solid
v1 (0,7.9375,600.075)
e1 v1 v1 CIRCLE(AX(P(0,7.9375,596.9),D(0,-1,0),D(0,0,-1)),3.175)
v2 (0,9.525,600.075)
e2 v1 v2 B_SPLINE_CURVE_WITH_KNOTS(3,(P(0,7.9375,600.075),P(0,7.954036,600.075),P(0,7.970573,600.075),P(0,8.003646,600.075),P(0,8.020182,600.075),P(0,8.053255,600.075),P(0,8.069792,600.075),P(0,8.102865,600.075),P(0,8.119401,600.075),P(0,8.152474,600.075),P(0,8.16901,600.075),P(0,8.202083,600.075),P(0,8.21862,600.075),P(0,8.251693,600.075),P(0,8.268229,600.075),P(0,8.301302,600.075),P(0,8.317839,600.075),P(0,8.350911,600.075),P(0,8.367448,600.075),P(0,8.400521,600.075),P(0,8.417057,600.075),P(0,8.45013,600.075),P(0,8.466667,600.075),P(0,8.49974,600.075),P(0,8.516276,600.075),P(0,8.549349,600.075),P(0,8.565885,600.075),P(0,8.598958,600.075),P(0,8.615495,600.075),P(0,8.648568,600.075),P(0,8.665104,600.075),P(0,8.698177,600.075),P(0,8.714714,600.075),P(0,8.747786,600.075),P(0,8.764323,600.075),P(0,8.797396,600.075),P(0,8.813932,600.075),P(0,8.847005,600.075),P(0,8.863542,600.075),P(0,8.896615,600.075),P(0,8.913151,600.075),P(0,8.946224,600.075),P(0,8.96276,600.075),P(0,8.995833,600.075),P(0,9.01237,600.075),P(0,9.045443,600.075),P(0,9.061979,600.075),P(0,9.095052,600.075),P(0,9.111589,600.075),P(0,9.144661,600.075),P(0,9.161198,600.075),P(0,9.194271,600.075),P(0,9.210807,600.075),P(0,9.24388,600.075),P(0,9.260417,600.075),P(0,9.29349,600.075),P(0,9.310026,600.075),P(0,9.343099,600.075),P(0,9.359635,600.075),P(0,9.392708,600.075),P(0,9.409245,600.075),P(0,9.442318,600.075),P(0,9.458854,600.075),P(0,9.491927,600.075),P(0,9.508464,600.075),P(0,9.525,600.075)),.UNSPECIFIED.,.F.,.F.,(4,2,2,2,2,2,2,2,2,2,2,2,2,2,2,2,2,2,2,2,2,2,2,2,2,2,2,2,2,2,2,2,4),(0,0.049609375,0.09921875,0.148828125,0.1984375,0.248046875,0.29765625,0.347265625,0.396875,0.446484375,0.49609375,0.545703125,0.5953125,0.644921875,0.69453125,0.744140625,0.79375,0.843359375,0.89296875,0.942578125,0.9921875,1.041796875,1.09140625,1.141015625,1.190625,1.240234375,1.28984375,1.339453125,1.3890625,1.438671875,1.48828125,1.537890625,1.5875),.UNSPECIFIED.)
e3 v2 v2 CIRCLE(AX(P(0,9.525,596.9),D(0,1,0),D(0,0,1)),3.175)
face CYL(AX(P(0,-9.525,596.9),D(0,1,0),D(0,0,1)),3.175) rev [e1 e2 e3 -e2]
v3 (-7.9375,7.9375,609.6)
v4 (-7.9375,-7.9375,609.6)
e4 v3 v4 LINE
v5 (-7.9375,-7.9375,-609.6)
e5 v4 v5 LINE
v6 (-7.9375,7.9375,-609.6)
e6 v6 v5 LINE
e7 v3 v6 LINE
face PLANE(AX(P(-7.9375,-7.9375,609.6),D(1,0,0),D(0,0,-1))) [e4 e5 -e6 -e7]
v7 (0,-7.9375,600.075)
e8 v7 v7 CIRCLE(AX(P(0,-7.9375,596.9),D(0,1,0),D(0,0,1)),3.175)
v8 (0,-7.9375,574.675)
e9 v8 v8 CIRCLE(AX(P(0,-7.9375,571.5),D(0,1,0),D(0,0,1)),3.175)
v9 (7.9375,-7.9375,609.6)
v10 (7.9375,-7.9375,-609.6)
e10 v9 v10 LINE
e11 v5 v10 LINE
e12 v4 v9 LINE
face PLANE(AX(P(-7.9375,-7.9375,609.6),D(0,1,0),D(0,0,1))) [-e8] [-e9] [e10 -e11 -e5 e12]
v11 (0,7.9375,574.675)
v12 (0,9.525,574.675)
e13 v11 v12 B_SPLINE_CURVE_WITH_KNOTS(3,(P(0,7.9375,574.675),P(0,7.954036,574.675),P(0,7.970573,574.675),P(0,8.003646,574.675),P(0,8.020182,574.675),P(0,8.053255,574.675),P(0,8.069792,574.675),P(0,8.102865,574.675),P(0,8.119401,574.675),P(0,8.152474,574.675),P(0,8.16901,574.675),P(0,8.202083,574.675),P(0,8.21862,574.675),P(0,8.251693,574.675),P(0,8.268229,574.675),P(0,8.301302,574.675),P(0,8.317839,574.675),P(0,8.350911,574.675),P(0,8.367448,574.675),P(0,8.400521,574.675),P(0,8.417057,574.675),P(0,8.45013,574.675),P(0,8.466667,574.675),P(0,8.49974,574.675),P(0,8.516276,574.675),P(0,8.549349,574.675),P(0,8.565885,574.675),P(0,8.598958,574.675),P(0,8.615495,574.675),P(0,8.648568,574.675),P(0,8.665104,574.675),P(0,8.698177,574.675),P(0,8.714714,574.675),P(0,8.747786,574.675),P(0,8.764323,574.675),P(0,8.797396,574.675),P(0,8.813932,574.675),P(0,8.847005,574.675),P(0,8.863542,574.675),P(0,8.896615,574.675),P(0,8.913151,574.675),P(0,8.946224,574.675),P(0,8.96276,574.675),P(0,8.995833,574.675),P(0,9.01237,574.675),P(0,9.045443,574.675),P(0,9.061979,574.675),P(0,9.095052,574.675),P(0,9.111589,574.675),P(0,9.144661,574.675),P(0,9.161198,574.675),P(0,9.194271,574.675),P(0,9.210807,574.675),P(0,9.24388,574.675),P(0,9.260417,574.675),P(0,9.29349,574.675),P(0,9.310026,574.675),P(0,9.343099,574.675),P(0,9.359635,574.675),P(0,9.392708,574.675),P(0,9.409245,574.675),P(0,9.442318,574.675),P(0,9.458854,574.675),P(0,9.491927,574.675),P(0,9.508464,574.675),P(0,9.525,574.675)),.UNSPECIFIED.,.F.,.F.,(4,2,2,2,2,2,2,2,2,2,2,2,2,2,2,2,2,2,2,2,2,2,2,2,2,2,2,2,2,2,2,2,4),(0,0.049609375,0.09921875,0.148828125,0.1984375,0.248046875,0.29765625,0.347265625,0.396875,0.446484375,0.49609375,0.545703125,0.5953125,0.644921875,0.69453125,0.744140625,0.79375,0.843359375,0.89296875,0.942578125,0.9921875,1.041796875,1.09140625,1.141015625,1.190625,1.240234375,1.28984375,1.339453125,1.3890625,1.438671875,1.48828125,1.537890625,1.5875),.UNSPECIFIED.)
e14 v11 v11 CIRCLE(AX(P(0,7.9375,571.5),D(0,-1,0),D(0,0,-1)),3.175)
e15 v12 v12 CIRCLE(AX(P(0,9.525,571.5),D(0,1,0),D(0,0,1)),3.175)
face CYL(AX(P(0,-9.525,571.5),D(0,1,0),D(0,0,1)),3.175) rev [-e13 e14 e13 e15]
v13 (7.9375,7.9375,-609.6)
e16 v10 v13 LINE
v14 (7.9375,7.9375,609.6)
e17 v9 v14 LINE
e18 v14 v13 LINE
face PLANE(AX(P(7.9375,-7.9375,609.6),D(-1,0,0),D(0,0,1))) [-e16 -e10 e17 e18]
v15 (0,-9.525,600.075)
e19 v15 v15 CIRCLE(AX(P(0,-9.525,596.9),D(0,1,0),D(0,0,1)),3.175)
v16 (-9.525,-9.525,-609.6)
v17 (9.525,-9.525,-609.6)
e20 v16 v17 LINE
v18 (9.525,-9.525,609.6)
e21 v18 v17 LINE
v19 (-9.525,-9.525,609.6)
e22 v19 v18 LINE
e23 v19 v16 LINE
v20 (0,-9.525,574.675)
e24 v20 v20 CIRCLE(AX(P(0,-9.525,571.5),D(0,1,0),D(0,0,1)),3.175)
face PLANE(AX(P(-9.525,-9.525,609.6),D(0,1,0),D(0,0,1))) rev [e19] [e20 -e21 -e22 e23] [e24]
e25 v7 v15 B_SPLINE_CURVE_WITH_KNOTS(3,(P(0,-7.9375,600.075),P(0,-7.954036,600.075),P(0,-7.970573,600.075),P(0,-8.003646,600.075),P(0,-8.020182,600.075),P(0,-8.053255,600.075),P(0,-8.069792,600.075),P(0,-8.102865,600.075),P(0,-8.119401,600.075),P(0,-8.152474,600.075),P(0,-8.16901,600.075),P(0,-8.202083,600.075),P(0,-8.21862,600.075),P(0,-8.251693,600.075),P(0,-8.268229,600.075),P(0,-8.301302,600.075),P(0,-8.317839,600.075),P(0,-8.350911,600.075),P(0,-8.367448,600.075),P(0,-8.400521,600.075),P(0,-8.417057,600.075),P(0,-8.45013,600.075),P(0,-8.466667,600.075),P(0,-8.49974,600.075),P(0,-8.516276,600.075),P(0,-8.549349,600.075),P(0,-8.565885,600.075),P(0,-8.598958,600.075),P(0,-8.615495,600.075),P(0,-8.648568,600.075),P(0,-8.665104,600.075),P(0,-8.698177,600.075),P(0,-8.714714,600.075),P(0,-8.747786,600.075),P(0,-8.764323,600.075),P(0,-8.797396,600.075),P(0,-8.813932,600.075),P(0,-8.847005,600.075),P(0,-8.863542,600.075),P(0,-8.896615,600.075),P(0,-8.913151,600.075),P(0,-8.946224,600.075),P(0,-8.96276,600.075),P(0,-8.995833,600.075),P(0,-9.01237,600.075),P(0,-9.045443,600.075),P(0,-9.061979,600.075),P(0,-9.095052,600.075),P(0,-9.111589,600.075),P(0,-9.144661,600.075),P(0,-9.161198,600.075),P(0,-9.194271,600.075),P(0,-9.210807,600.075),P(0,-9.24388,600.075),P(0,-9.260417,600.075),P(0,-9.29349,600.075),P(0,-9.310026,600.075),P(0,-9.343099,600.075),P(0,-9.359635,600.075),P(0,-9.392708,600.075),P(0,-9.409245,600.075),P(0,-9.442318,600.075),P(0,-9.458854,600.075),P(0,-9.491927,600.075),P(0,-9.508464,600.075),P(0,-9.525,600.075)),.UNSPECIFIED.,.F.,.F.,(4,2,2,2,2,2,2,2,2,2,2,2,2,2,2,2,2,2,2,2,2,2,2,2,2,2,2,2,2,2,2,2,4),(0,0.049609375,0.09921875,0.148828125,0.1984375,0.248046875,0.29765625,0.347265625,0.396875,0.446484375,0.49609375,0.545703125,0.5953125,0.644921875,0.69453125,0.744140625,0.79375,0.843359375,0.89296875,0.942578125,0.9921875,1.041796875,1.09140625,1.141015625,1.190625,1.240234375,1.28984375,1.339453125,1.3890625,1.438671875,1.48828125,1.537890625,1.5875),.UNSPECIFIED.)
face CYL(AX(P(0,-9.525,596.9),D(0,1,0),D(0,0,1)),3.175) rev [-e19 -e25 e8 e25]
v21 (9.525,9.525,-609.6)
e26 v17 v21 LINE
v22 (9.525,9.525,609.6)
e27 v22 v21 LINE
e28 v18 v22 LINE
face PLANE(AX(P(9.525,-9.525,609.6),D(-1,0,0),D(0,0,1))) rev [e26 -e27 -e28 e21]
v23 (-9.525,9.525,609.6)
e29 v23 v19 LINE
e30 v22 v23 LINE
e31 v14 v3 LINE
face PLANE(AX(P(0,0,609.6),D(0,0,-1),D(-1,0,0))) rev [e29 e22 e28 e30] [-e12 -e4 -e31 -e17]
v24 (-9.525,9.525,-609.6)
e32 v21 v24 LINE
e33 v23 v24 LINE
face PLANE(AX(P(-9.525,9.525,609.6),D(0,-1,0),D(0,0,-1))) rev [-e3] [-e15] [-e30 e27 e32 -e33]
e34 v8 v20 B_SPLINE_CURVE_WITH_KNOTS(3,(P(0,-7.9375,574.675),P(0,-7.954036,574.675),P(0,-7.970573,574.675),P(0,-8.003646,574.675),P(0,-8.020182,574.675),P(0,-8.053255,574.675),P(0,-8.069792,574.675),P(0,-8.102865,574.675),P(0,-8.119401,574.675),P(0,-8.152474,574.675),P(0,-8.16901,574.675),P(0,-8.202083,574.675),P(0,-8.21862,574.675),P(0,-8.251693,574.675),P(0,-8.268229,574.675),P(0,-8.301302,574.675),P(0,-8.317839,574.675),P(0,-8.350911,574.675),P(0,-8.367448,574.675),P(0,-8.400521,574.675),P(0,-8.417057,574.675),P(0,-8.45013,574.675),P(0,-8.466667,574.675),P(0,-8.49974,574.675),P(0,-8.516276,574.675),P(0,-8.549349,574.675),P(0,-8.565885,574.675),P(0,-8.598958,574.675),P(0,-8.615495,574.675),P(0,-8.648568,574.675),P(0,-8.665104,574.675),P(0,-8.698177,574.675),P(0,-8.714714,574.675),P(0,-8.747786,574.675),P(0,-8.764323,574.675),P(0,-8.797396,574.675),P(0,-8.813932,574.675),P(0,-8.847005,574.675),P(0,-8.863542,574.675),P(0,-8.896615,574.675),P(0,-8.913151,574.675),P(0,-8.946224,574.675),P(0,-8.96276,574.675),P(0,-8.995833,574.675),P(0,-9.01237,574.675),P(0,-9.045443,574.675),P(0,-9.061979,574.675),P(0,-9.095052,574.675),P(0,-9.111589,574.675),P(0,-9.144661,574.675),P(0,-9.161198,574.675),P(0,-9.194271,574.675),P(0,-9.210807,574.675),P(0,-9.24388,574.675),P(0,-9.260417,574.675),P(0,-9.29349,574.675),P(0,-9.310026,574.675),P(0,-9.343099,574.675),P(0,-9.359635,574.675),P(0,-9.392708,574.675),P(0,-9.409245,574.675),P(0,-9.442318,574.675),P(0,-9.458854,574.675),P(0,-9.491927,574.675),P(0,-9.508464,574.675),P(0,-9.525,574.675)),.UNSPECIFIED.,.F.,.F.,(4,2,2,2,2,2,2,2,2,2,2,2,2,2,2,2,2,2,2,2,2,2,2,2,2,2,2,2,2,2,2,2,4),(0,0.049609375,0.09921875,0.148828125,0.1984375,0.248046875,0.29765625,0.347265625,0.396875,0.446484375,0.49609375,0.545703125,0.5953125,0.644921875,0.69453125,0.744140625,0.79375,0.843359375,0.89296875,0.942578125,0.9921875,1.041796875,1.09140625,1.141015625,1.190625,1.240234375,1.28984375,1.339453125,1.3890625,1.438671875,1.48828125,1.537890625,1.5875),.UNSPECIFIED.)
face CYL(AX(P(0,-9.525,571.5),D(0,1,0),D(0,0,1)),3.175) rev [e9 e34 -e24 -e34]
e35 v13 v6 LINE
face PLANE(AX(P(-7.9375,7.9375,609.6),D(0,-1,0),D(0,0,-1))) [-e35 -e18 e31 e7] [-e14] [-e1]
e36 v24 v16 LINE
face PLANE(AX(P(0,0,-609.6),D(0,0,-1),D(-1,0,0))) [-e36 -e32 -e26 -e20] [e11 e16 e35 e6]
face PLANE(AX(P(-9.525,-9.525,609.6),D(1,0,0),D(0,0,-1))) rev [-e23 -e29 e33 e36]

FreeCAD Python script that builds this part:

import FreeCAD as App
import Part
import Sketcher
Q = App.Units.Quantity


def add_polygon(sketch, points):
    """Adds a closed chain of lines whose ends are joined by coincident constraints."""
    first, n = sketch.GeometryCount, len(points)
    for a, b in zip(points, points[1:] + points[:1]):
        sketch.addGeometry(Part.LineSegment(App.Vector(*a, 0), App.Vector(*b, 0)), False)
    for i in range(n):
        sketch.addConstraint(Sketcher.Constraint("Coincident", first + i, 2, first + (i + 1) % n, 1))

doc = App.newDocument("Part")
body = doc.addObject("PartDesign::Body", "Body")

# Sketch on XY plane
sketch1 = body.newObject("Sketcher::SketchObject", "Sketch")
sketch1.AttachmentSupport = (doc.getObject("XY_Plane"), [""])
sketch1.MapMode = "FlatFace"
add_polygon(sketch1, [(-10, 10), (-10, -10), (10, -10), (10, 10)])  # lines 0-3
add_polygon(sketch1, [(8, -8), (-8, -8), (-8, 8), (8, 8)])  # lines 4-7
sketch1.addConstraint(Sketcher.Constraint("Vertical", 0))
sketch1.addConstraint(Sketcher.Constraint("Horizontal", 1))
sketch1.addConstraint(Sketcher.Constraint("Vertical", 2))
sketch1.addConstraint(Sketcher.Constraint("Horizontal", 3))
sketch1.addConstraint(Sketcher.Constraint("Horizontal", 4))
sketch1.addConstraint(Sketcher.Constraint("Vertical", 5))
sketch1.addConstraint(Sketcher.Constraint("Horizontal", 6))
sketch1.addConstraint(Sketcher.Constraint("Vertical", 7))
sketch1.addConstraint(Sketcher.Constraint("Symmetric", 0, 2, 2, 2, -1, 1))
sketch1.addConstraint(Sketcher.Constraint("Symmetric", 4, 2, 6, 2, -1, 1))
sketch1.addConstraint(Sketcher.Constraint("Equal", 3, 0))
sketch1.addConstraint(Sketcher.Constraint("Equal", 6, 5))
sketch1.addConstraint(Sketcher.Constraint("DistanceX", 1, 1, 1, 2, Q("0.75 in")))
sketch1.addConstraint(Sketcher.Constraint("DistanceX", 4, 2, 4, 1, Q("0.625 in")))
pad1 = body.newObject("PartDesign::Pad", "Pad")
pad1.Profile = sketch1
pad1.Length = Q("48 in")
pad1.Midplane = True

# Sketch on XZ plane
sketch2 = body.newObject("Sketcher::SketchObject", "Sketch001")
sketch2.AttachmentSupport = (doc.getObject("XZ_Plane"), [""])
sketch2.MapMode = "FlatFace"
sketch2.addGeometry(Part.Circle(App.Vector(0, 596.9, 0), App.Vector(0, 0, 1), 3.2), False)
sketch2.addGeometry(Part.Circle(App.Vector(0, 571.5, 0), App.Vector(0, 0, 1), 3.2), False)
sketch2.addConstraint(Sketcher.Constraint("Equal", 0, 1))
sketch2.addConstraint(Sketcher.Constraint("PointOnObject", 0, 3, -2))
sketch2.addConstraint(Sketcher.Constraint("PointOnObject", 1, 3, -2))
sketch2.addConstraint(Sketcher.Constraint("Diameter", 0, Q("0.25 in")))
sketch2.addConstraint(Sketcher.Constraint("DistanceY", 1, 3, 0, 3, Q("1 in")))
sketch2.addConstraint(Sketcher.Constraint("DistanceY", -1, 1, 0, 3, Q("23.5 in")))
pocket1 = body.newObject("PartDesign::Pocket", "Pocket")
pocket1.Profile = sketch2
pocket1.Type = "ThroughAll"
pocket1.Midplane = True

doc.recompute()
